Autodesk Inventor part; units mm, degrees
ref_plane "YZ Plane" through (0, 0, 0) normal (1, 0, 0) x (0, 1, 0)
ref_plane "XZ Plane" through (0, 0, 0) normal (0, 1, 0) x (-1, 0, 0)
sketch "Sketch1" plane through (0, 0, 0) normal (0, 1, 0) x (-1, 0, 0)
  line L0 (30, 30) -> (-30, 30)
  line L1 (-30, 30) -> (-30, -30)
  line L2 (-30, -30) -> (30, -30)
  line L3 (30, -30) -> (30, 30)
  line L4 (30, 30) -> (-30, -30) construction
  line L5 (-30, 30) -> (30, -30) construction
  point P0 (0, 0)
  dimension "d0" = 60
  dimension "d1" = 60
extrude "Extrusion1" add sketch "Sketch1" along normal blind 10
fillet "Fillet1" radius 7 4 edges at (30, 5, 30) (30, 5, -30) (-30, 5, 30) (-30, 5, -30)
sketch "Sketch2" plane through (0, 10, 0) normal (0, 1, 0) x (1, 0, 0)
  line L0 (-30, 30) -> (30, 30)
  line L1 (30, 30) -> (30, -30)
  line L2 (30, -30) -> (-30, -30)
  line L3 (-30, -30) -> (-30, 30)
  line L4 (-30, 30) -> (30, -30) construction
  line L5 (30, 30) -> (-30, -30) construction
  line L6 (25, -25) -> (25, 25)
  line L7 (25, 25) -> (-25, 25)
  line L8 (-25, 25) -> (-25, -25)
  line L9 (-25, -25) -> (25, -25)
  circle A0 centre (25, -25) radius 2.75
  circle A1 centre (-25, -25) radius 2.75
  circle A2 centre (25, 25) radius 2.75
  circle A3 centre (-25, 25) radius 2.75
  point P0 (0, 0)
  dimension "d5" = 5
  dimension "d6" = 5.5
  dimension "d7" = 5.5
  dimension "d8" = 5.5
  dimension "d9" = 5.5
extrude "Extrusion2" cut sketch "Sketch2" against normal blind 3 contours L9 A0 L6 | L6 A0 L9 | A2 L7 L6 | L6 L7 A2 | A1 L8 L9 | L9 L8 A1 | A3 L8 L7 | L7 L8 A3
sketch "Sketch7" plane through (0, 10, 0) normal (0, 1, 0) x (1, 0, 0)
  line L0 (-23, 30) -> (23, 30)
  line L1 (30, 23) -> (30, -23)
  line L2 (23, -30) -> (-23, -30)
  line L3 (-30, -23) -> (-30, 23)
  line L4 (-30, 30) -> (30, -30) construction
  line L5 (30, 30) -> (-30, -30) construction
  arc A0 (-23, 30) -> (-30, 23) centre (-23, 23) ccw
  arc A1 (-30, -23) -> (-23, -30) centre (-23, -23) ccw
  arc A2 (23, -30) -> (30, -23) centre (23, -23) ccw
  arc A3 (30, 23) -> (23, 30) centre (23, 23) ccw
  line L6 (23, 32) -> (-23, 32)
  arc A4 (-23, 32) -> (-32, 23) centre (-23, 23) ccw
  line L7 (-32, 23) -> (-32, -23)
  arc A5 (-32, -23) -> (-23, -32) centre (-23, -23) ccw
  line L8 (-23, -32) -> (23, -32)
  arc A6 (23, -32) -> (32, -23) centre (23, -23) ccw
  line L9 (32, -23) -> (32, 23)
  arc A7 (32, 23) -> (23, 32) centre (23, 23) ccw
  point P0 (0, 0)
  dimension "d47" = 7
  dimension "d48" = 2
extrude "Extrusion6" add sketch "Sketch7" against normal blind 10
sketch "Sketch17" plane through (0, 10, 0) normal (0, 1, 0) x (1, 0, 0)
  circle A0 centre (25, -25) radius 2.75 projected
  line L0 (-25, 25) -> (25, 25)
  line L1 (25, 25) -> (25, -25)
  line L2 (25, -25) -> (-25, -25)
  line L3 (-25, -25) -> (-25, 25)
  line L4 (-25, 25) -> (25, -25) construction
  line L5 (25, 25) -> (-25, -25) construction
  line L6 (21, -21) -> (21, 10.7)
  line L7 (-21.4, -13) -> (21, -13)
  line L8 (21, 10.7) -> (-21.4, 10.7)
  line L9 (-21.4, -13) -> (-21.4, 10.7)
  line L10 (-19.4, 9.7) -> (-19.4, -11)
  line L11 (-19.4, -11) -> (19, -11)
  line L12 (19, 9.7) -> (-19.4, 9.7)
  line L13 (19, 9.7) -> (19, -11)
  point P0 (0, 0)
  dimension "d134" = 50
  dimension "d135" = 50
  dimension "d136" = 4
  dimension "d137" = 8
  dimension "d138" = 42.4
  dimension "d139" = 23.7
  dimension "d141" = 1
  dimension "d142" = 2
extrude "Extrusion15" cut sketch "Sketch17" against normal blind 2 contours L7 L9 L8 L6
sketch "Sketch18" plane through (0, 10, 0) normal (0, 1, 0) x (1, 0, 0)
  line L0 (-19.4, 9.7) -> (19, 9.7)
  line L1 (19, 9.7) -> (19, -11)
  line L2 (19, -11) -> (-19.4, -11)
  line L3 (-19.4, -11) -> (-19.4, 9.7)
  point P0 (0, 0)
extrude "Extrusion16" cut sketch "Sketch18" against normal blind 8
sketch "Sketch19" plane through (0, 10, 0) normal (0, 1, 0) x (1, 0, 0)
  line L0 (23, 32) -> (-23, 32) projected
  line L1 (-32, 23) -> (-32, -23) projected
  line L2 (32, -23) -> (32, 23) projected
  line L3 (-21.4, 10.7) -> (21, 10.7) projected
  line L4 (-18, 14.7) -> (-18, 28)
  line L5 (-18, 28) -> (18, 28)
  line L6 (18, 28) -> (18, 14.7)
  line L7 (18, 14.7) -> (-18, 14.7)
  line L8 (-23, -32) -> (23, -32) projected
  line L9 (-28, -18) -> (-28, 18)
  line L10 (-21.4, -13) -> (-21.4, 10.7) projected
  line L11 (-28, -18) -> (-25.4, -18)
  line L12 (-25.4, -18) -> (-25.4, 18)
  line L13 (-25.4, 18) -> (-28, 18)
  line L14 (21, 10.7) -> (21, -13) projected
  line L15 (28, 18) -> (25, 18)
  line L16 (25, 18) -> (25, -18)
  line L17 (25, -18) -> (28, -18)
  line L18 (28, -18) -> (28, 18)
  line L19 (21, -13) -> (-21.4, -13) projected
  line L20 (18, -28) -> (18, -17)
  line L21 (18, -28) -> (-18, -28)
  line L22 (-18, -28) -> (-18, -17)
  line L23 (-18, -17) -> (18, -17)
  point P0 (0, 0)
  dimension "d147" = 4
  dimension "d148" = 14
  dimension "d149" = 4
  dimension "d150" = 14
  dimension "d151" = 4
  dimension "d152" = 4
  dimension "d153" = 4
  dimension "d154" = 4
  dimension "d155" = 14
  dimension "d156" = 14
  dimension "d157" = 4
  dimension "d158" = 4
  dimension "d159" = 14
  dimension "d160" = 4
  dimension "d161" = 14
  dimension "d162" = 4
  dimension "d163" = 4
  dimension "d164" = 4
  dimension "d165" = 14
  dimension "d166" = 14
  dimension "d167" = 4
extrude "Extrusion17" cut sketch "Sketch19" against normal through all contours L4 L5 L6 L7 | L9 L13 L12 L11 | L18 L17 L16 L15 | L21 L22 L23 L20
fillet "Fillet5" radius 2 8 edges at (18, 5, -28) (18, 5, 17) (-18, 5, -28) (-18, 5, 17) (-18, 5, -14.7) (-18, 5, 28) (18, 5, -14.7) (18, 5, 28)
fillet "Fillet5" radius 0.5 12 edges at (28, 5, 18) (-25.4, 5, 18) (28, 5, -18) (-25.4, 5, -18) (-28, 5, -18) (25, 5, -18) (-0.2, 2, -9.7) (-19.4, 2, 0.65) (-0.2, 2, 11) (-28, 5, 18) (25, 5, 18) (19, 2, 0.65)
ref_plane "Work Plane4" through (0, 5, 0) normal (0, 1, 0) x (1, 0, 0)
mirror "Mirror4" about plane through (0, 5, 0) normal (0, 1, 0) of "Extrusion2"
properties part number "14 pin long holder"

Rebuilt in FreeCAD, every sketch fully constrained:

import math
import FreeCAD as App
import Part
import Sketcher

V = App.Vector
Q = App.Units.Quantity


def edges_at(feature, points):
    """Names of the edges that pass closest to the given points."""
    edges = feature.Shape.Edges
    near = lambda p: min(range(len(edges)), key=lambda i: edges[i].distToShape(Part.Vertex(*p))[0])
    return sorted({f"Edge{near(p) + 1}" for p in points})


def add_polygon(sketch, points):
    """Adds a closed chain of lines whose ends are joined by coincident constraints."""
    first, n = sketch.GeometryCount, len(points)
    for a, b in zip(points, points[1:] + points[:1]):
        sketch.addGeometry(Part.LineSegment(App.Vector(*a, 0), App.Vector(*b, 0)), False)
    for i in range(n):
        sketch.addConstraint(Sketcher.Constraint("Coincident", first + i, 2, first + (i + 1) % n, 1))

doc = App.newDocument("Part")
body = doc.addObject("PartDesign::Body", "Body")

# Sketch on XZ plane
sketch1 = doc.addObject("Sketcher::SketchObject", "Sketch")
body.addObject(sketch1)
sketch1.AttachmentSupport = (doc.XZ_Plane, [""])
sketch1.MapMode = "FlatFace"
add_polygon(sketch1, [(-30, -30), (-30, 30), (30, 30), (30, -30)])  # lines 0-3
sketch1.addConstraint([
    Sketcher.Constraint("Vertical", 0),
    Sketcher.Constraint("Horizontal", 1),
    Sketcher.Constraint("Vertical", 2),
    Sketcher.Constraint("Horizontal", 3),
    Sketcher.Constraint("Symmetric", 0, 2, 2, 2, -1, 1),
    Sketcher.Constraint("Equal", 3, 0),
    Sketcher.Constraint("DistanceX", 1, 1, 1, 2, Q("60 mm")),
])
pad1 = doc.addObject("PartDesign::Pad", "Pad")
body.addObject(pad1)
pad1.Profile = sketch1
pad1.Length = 10
pad1.Reversed = True
doc.recompute()

fillet = doc.addObject("PartDesign::Fillet", "Fillet")
body.addObject(fillet)
fillet.Base = (pad1, edges_at(pad1, [
    (30, 5, 30),
    (30, 5, -30),
    (-30, 5, 30),
    (-30, 5, -30),
]))
fillet.Radius = 7

# Sketch on XZ plane
sketch2 = doc.addObject("Sketcher::SketchObject", "Sketch001")
body.addObject(sketch2)
sketch2.AttachmentSupport = (doc.XZ_Plane, [""])
sketch2.MapMode = "FlatFace"
sketch2.AttachmentOffset = App.Placement(V(0, 0, -10), App.Rotation())
sketch2.addGeometry([
    Part.Circle(V(25, 25, 0), V(0, 0, 1), 2.75),
    Part.Circle(V(25, -25, 0), V(0, 0, 1), 2.75),
    Part.Circle(V(-25, 25, 0), V(0, 0, 1), 2.75),
    Part.Circle(V(-25, -25, 0), V(0, 0, 1), 2.75),
], False)
sketch2.addConstraint([
    Sketcher.Constraint("Equal", 0, 1),
    Sketcher.Constraint("Equal", 1, 2),
    Sketcher.Constraint("Equal", 2, 3),
    Sketcher.Constraint("Symmetric", 1, 3, 2, 3, -1, 1),
    Sketcher.Constraint("Symmetric", 0, 3, 3, 3, -1, 1),
    Sketcher.Constraint("Symmetric", 0, 3, 2, 3, -2),
    Sketcher.Constraint("Diameter", 0, Q("5.5 mm")),
    Sketcher.Constraint("DistanceX", -1, 1, 0, 3, Q("25 mm")),
    Sketcher.Constraint("DistanceY", -1, 1, 0, 3, Q("25 mm")),
])
pocket1 = doc.addObject("PartDesign::Pocket", "Pocket")
body.addObject(pocket1)
pocket1.Profile = sketch2
pocket1.Length = 3
pocket1.Reversed = True

# Sketch on XZ plane
sketch3 = doc.addObject("Sketcher::SketchObject", "Sketch002")
body.addObject(sketch3)
sketch3.AttachmentSupport = (doc.XZ_Plane, [""])
sketch3.MapMode = "FlatFace"
sketch3.AttachmentOffset = App.Placement(V(0, 0, -10), App.Rotation())
sketch3.addGeometry([
    Part.ArcOfCircle(Part.Circle(V(23, -23, 0), V(0, 0, 1), 9), math.radians(-90), math.radians(0)),  # 0
    Part.LineSegment(V(23, -32, 0), V(-23, -32, 0)),  # 1
    Part.ArcOfCircle(Part.Circle(V(-23, -23, 0), V(0, 0, 1), 9), math.radians(180), math.radians(270)),  # 2
    Part.LineSegment(V(-32, -23, 0), V(-32, 23, 0)),  # 3
    Part.ArcOfCircle(Part.Circle(V(-23, 23, 0), V(0, 0, 1), 9), math.radians(90), math.radians(180)),  # 4
    Part.LineSegment(V(-23, 32, 0), V(23, 32, 0)),  # 5
    Part.ArcOfCircle(Part.Circle(V(23, 23, 0), V(0, 0, 1), 9), math.radians(0), math.radians(90)),  # 6
    Part.LineSegment(V(32, 23, 0), V(32, -23, 0)),  # 7
    Part.ArcOfCircle(Part.Circle(V(-23, -23, 0), V(0, 0, 1), 7), math.radians(180), math.radians(270)),  # 8
    Part.LineSegment(V(-23, -30, 0), V(23, -30, 0)),  # 9
    Part.ArcOfCircle(Part.Circle(V(23, -23, 0), V(0, 0, 1), 7), math.radians(-90), math.radians(0)),  # 10
    Part.LineSegment(V(30, -23, 0), V(30, 23, 0)),  # 11
    Part.ArcOfCircle(Part.Circle(V(23, 23, 0), V(0, 0, 1), 7), math.radians(0), math.radians(90)),  # 12
    Part.LineSegment(V(23, 30, 0), V(-23, 30, 0)),  # 13
    Part.ArcOfCircle(Part.Circle(V(-23, 23, 0), V(0, 0, 1), 7), math.radians(90), math.radians(180)),  # 14
    Part.LineSegment(V(-30, 23, 0), V(-30, -23, 0)),  # 15
], False)
sketch3.addConstraint([
    Sketcher.Constraint("Tangent", 0, 1, 1, 1),
    Sketcher.Constraint("Tangent", 1, 2, 2, 2),
    Sketcher.Constraint("Tangent", 2, 1, 3, 1),
    Sketcher.Constraint("Tangent", 3, 2, 4, 2),
    Sketcher.Constraint("Tangent", 4, 1, 5, 1),
    Sketcher.Constraint("Tangent", 5, 2, 6, 2),
    Sketcher.Constraint("Tangent", 6, 1, 7, 1),
    Sketcher.Constraint("Tangent", 7, 2, 0, 2),
    Sketcher.Constraint("Tangent", 8, 2, 9, 1),
    Sketcher.Constraint("Tangent", 9, 2, 10, 1),
    Sketcher.Constraint("Tangent", 10, 2, 11, 1),
    Sketcher.Constraint("Tangent", 11, 2, 12, 1),
    Sketcher.Constraint("Tangent", 12, 2, 13, 1),
    Sketcher.Constraint("Tangent", 13, 2, 14, 1),
    Sketcher.Constraint("Tangent", 14, 2, 15, 1),
    Sketcher.Constraint("Tangent", 15, 2, 8, 1),
    Sketcher.Constraint("Horizontal", 1),
    Sketcher.Constraint("Vertical", 3),
    Sketcher.Constraint("Horizontal", 5),
    Sketcher.Constraint("Vertical", 7),
    Sketcher.Constraint("Horizontal", 9),
    Sketcher.Constraint("Vertical", 11),
    Sketcher.Constraint("Horizontal", 13),
    Sketcher.Constraint("Vertical", 15),
    Sketcher.Constraint("Coincident", 8, 3, 2, 3),
    Sketcher.Constraint("Coincident", 10, 3, 0, 3),
    Sketcher.Constraint("Coincident", 12, 3, 6, 3),
    Sketcher.Constraint("Equal", 0, 2),
    Sketcher.Constraint("Equal", 2, 4),
    Sketcher.Constraint("Equal", 4, 6),
    Sketcher.Constraint("Equal", 12, 14),
    Sketcher.Constraint("Symmetric", 0, 3, 4, 3, -1, 1),
    Sketcher.Constraint("Equal", 13, 3),
    Sketcher.Constraint("Radius", 8, Q("7 mm")),
    Sketcher.Constraint("Radius", 0, Q("9 mm")),
    Sketcher.Constraint("DistanceX", 1, 2, 1, 1, Q("46 mm")),
])
pad2 = doc.addObject("PartDesign::Pad", "Pad001")
body.addObject(pad2)
pad2.Profile = sketch3
pad2.Length = 10

# Sketch on XZ plane
sketch4 = doc.addObject("Sketcher::SketchObject", "Sketch003")
body.addObject(sketch4)
sketch4.AttachmentSupport = (doc.XZ_Plane, [""])
sketch4.MapMode = "FlatFace"
sketch4.AttachmentOffset = App.Placement(V(0, 0, -10), App.Rotation())
add_polygon(sketch4, [(-21.4, 13), (21, 13), (21, -10.7), (-21.4, -10.7)])  # lines 0-3
add_polygon(sketch4, [(-19.4, 11), (-19.4, -9.7), (19, -9.7), (19, 11)])  # lines 4-7
sketch4.addConstraint([
    Sketcher.Constraint("Horizontal", 0),
    Sketcher.Constraint("Vertical", 1),
    Sketcher.Constraint("Horizontal", 2),
    Sketcher.Constraint("Vertical", 3),
    Sketcher.Constraint("Vertical", 4),
    Sketcher.Constraint("Horizontal", 5),
    Sketcher.Constraint("Vertical", 6),
    Sketcher.Constraint("Horizontal", 7),
    Sketcher.Constraint("DistanceX", 0, 1, 0, 2, Q("42.4 mm")),
    Sketcher.Constraint("DistanceY", 1, 2, 1, 1, Q("23.7 mm")),
    Sketcher.Constraint("DistanceX", 2, 2, 4, 2, Q("2 mm")),
    Sketcher.Constraint("DistanceY", 2, 2, 4, 2, Q("1 mm")),
    Sketcher.Constraint("DistanceX", 5, 2, 1, 2, Q("2 mm")),
    Sketcher.Constraint("DistanceY", 6, 2, 0, 2, Q("2 mm")),
    Sketcher.Constraint("DistanceX", -1, 1, 0, 2, Q("21 mm")),
    Sketcher.Constraint("DistanceY", -1, 1, 0, 2, Q("13 mm")),
])
pocket2 = doc.addObject("PartDesign::Pocket", "Pocket001")
body.addObject(pocket2)
pocket2.Profile = sketch4
pocket2.Length = 2
pocket2.Reversed = True

# Sketch on XZ plane
sketch5 = doc.addObject("Sketcher::SketchObject", "Sketch004")
body.addObject(sketch5)
sketch5.AttachmentSupport = (doc.XZ_Plane, [""])
sketch5.MapMode = "FlatFace"
sketch5.AttachmentOffset = App.Placement(V(0, 0, -10), App.Rotation())
add_polygon(sketch5, [(19, -9.7), (-19.4, -9.7), (-19.4, 11), (19, 11)])  # lines 0-3
sketch5.addConstraint([
    Sketcher.Constraint("Horizontal", 0),
    Sketcher.Constraint("Vertical", 1),
    Sketcher.Constraint("Horizontal", 2),
    Sketcher.Constraint("Vertical", 3),
    Sketcher.Constraint("DistanceX", 0, 2, 0, 1, Q("38.4 mm")),
    Sketcher.Constraint("DistanceY", 1, 1, 1, 2, Q("20.7 mm")),
    Sketcher.Constraint("DistanceY", -1, 1, 1, 2, Q("11 mm")),
    Sketcher.Constraint("DistanceX", -1, 1, 2, 2, Q("19 mm")),
])
pocket3 = doc.addObject("PartDesign::Pocket", "Pocket002")
body.addObject(pocket3)
pocket3.Profile = sketch5
pocket3.Length = 8
pocket3.Reversed = True

# Sketch on XZ plane
sketch6 = doc.addObject("Sketcher::SketchObject", "Sketch005")
body.addObject(sketch6)
sketch6.AttachmentSupport = (doc.XZ_Plane, [""])
sketch6.MapMode = "FlatFace"
sketch6.AttachmentOffset = App.Placement(V(0, 0, -10), App.Rotation())
add_polygon(sketch6, [(-18, -28), (-18, -14.7), (18, -14.7), (18, -28)])  # lines 0-3
add_polygon(sketch6, [(-28, -18), (-28, 18), (-25.4, 18), (-25.4, -18)])  # lines 4-7
add_polygon(sketch6, [(28, 18), (28, -18), (25, -18), (25, 18)])  # lines 8-11
add_polygon(sketch6, [(-18, 28), (18, 28), (18, 17), (-18, 17)])  # lines 12-15
sketch6.addConstraint([
    Sketcher.Constraint("Vertical", 0),
    Sketcher.Constraint("Horizontal", 1),
    Sketcher.Constraint("Vertical", 2),
    Sketcher.Constraint("Horizontal", 3),
    Sketcher.Constraint("Vertical", 4),
    Sketcher.Constraint("Horizontal", 5),
    Sketcher.Constraint("Vertical", 6),
    Sketcher.Constraint("Horizontal", 7),
    Sketcher.Constraint("Vertical", 8),
    Sketcher.Constraint("Horizontal", 9),
    Sketcher.Constraint("Vertical", 10),
    Sketcher.Constraint("Horizontal", 11),
    Sketcher.Constraint("Horizontal", 12),
    Sketcher.Constraint("Vertical", 13),
    Sketcher.Constraint("Horizontal", 14),
    Sketcher.Constraint("Vertical", 15),
    Sketcher.Constraint("Symmetric", 4, 2, 8, 2, -1, 1),
    Sketcher.Constraint("Symmetric", 3, 2, 12, 2, -1, 1),
    Sketcher.Constraint("Horizontal", 7, 2, 8, 2),
    Sketcher.Constraint("Horizontal", 5, 2, 10, 2),
    Sketcher.Constraint("Vertical", 2, 2, 12, 2),
    Sketcher.Constraint("Vertical", 3, 2, 14, 2),
    Sketcher.Constraint("Equal", 14, 4),
    Sketcher.Constraint("DistanceX", 1, 1, 1, 2, Q("36 mm")),
    Sketcher.Constraint("DistanceX", 9, 2, 9, 1, Q("3 mm")),
    Sketcher.Constraint("DistanceY", 13, 2, 13, 1, Q("11 mm")),
    Sketcher.Constraint("DistanceX", 5, 1, 5, 2, Q("2.6 mm")),
    Sketcher.Constraint("DistanceY", 0, 1, 0, 2, Q("13.3 mm")),
    Sketcher.Constraint("DistanceY", 2, 2, -1, 1, Q("28 mm")),
    Sketcher.Constraint("DistanceX", 4, 2, -1, 1, Q("28 mm")),
])
pocket4 = doc.addObject("PartDesign::Pocket", "Pocket003")
body.addObject(pocket4)
pocket4.Profile = sketch6
pocket4.Type = "ThroughAll"
pocket4.Reversed = True
doc.recompute()

fillet2 = doc.addObject("PartDesign::Fillet", "Fillet001")
body.addObject(fillet2)
fillet2.Base = (pocket4, edges_at(pocket4, [
    (18, 5, -28),
    (18, 5, 17),
    (-18, 5, -28),
    (-18, 5, 17),
    (-18, 5, -14.7),
    (-18, 5, 28),
    (18, 5, -14.7),
    (18, 5, 28),
]))
fillet2.Radius = 2
doc.recompute()

fillet3 = doc.addObject("PartDesign::Fillet", "Fillet002")
body.addObject(fillet3)
fillet3.Base = (fillet2, edges_at(fillet2, [
    (28, 5, 18),
    (-25.4, 5, 18),
    (28, 5, -18),
    (-25.4, 5, -18),
    (-28, 5, -18),
    (25, 5, -18),
    (-0.2, 2, -9.7),
    (-19.4, 2, 0.65),
    (-0.2, 2, 11),
    (-28, 5, 18),
    (25, 5, 18),
    (19, 2, 0.65),
]))
fillet3.Radius = 0.5
doc.recompute()

datumplane = doc.addObject("PartDesign::Plane", "DatumPlane")
body.addObject(datumplane)
datumplane.AttachmentSupport = (doc.XZ_Plane, [""])
datumplane.MapMode = "FlatFace"
datumplane.AttachmentOffset = App.Placement(V(0, 0, -5), App.Rotation())
mirrored = doc.addObject("PartDesign::Mirrored", "Mirrored")
body.addObject(mirrored)
mirrored.Originals = [pocket1]
mirrored.MirrorPlane = (datumplane, [""])
body.Tip = mirrored

doc.recompute()
